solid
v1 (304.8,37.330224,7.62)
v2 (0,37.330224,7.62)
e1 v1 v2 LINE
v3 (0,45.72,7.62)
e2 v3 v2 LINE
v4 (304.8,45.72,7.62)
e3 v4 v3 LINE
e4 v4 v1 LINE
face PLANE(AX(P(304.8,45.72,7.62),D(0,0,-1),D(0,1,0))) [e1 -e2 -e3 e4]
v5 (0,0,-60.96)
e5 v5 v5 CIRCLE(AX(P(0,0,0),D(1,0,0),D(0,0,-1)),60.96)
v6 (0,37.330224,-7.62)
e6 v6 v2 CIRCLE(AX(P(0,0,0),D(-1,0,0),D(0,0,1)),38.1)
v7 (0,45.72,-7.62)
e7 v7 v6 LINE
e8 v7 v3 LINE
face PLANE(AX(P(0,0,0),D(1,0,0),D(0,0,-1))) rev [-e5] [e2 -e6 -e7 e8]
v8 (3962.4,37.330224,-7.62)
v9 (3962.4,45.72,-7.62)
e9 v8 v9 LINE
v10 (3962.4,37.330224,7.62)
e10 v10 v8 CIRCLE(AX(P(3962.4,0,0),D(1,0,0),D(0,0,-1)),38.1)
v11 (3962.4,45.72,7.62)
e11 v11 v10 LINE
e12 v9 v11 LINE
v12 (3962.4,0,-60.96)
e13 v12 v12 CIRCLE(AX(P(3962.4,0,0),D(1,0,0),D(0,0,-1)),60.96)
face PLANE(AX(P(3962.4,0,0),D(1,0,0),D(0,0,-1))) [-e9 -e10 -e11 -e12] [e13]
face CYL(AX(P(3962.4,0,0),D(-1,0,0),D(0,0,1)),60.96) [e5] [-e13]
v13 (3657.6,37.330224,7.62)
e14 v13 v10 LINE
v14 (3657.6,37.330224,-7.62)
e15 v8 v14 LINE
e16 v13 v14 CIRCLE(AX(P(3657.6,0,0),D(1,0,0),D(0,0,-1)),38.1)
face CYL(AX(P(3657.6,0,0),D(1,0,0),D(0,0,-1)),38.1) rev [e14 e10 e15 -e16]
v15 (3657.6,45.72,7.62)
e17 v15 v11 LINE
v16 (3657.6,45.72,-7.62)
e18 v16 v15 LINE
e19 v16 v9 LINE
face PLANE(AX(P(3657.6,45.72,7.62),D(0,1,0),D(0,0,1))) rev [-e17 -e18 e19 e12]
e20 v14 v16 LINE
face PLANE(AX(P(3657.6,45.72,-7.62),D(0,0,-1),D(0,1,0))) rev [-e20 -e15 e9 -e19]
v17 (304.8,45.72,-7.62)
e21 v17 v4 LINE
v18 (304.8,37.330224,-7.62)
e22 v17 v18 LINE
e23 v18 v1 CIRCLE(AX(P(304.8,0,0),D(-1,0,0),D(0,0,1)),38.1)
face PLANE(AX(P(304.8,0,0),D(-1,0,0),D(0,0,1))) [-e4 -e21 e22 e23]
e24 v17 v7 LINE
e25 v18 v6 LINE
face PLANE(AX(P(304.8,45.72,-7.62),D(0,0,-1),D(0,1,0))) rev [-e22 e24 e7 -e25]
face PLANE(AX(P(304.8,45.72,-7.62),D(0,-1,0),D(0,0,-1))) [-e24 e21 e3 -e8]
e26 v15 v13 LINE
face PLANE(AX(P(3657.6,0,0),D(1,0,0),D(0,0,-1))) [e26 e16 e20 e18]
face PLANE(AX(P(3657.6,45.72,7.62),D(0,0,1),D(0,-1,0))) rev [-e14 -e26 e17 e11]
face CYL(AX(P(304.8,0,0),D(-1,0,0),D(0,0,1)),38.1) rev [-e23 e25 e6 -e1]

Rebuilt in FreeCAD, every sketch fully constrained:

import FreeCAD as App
import Part
import Sketcher
Q = App.Units.Quantity


def add_polygon(sketch, points):
    """Adds a closed chain of lines whose ends are joined by coincident constraints."""
    first, n = sketch.GeometryCount, len(points)
    for a, b in zip(points, points[1:] + points[:1]):
        sketch.addGeometry(Part.LineSegment(App.Vector(*a, 0), App.Vector(*b, 0)), False)
    for i in range(n):
        sketch.addConstraint(Sketcher.Constraint("Coincident", first + i, 2, first + (i + 1) % n, 1))

doc = App.newDocument("Part")
params = doc.addObject("Spreadsheet::Sheet", "Params")
for row, (alias, value) in enumerate([
    ("sketch1_diameter", "4.8 in"),
    ("pad1_length", "156 in"),
    ("sketch2_diameter", "3 in"),
    ("pocket1_length", "12 in"),
    ("sketch3_width", "0.6 in"),
    ("pocket2_length", "12 in"),
    ("sketch4_diameter", "3 in"),
    ("pocket3_length", "12 in"),
    ("sketch5_width", "0.6 in"),
    ("pocket4_length", "12 in"),
], start=1):
    params.set(f"A{row}", alias)
    params.set(f"B{row}", "=" + value)
    params.setAlias(f"B{row}", alias)

body = doc.addObject("PartDesign::Body", "Body")

# Sketch on YZ plane
sketch1 = doc.addObject("Sketcher::SketchObject", "Sketch")
body.addObject(sketch1)
sketch1.AttachmentSupport = (doc.YZ_Plane, [""])
sketch1.MapMode = "FlatFace"
sketch1.addGeometry(Part.Circle(App.Vector(0, 0, 0), App.Vector(0, 0, 1), 61), False)
sketch1.addConstraint([
    Sketcher.Constraint("Coincident", 0, 3, -1, 1),
    Sketcher.Constraint("Diameter", 0, Q("4.8 in")),
])
sketch1.setExpression("Constraints[1]", "Params.sketch1_diameter")
pad1 = doc.addObject("PartDesign::Pad", "Pad")
body.addObject(pad1)
pad1.Profile = sketch1
pad1.setExpression("Length", "Params.pad1_length")

# Sketch on YZ plane
sketch2 = doc.addObject("Sketcher::SketchObject", "Sketch001")
body.addObject(sketch2)
sketch2.AttachmentSupport = (doc.YZ_Plane, [""])
sketch2.MapMode = "FlatFace"
sketch2.addGeometry(Part.Circle(App.Vector(0, 0, 0), App.Vector(0, 0, 1), 38), False)
sketch2.addConstraint([
    Sketcher.Constraint("Coincident", 0, 3, -1, 1),
    Sketcher.Constraint("Diameter", 0, Q("3 in")),
])
sketch2.setExpression("Constraints[1]", "Params.sketch2_diameter")
pocket1 = doc.addObject("PartDesign::Pocket", "Pocket")
body.addObject(pocket1)
pocket1.Profile = sketch2
pocket1.setExpression("Length", "Params.pocket1_length")
pocket1.Reversed = True

# Sketch on YZ plane
sketch3 = doc.addObject("Sketcher::SketchObject", "Sketch002")
body.addObject(sketch3)
sketch3.AttachmentSupport = (doc.YZ_Plane, [""])
sketch3.MapMode = "FlatFace"
add_polygon(sketch3, [(46, -8), (30, -8), (30, 8), (46, 8)])  # lines 0-3
sketch3.addConstraint([
    Sketcher.Constraint("Horizontal", 0),
    Sketcher.Constraint("Vertical", 1),
    Sketcher.Constraint("Horizontal", 2),
    Sketcher.Constraint("Vertical", 3),
    Sketcher.Constraint("Equal", 2, 1),
    Sketcher.Constraint("DistanceX", 0, 2, 0, 1, Q("0.6 in")),
    Sketcher.Constraint("DistanceX", -1, 1, 0, 2, Q("1.2 in")),
    Sketcher.Constraint("DistanceY", 0, 2, -1, 1, Q("0.3 in")),
])
sketch3.setExpression("Constraints[9]", "Params.sketch3_width")
pocket2 = doc.addObject("PartDesign::Pocket", "Pocket001")
body.addObject(pocket2)
pocket2.Profile = sketch3
pocket2.setExpression("Length", "Params.pocket2_length")
pocket2.Reversed = True

# Sketch on YZ plane
sketch4 = doc.addObject("Sketcher::SketchObject", "Sketch003")
body.addObject(sketch4)
sketch4.AttachmentSupport = (doc.YZ_Plane, [""])
sketch4.MapMode = "FlatFace"
sketch4.AttachmentOffset = App.Placement(App.Vector(0, 0, 144 * 25.4), App.Rotation())
sketch4.addGeometry(Part.Circle(App.Vector(0, 0, 0), App.Vector(0, 0, 1), 38), False)
sketch4.addConstraint([
    Sketcher.Constraint("Coincident", 0, 3, -1, 1),
    Sketcher.Constraint("Diameter", 0, Q("3 in")),
])
sketch4.setExpression("Constraints[1]", "Params.sketch4_diameter")
pocket3 = doc.addObject("PartDesign::Pocket", "Pocket002")
body.addObject(pocket3)
pocket3.Profile = sketch4
pocket3.setExpression("Length", "Params.pocket3_length")
pocket3.Reversed = True

# Sketch on YZ plane
sketch5 = doc.addObject("Sketcher::SketchObject", "Sketch004")
body.addObject(sketch5)
sketch5.AttachmentSupport = (doc.YZ_Plane, [""])
sketch5.MapMode = "FlatFace"
sketch5.AttachmentOffset = App.Placement(App.Vector(0, 0, 156 * 25.4), App.Rotation())
add_polygon(sketch5, [(46, 8), (30, 8), (30, -8), (46, -8)])  # lines 0-3
sketch5.addConstraint([
    Sketcher.Constraint("Horizontal", 0),
    Sketcher.Constraint("Vertical", 1),
    Sketcher.Constraint("Horizontal", 2),
    Sketcher.Constraint("Vertical", 3),
    Sketcher.Constraint("Equal", 2, 1),
    Sketcher.Constraint("DistanceX", 0, 2, 0, 1, Q("0.6 in")),
    Sketcher.Constraint("DistanceX", -1, 1, 0, 2, Q("1.2 in")),
    Sketcher.Constraint("DistanceY", -1, 1, 0, 2, Q("0.3 in")),
])
sketch5.setExpression("Constraints[9]", "Params.sketch5_width")
pocket4 = doc.addObject("PartDesign::Pocket", "Pocket003")
body.addObject(pocket4)
pocket4.Profile = sketch5
pocket4.setExpression("Length", "Params.pocket4_length")

doc.recompute()
